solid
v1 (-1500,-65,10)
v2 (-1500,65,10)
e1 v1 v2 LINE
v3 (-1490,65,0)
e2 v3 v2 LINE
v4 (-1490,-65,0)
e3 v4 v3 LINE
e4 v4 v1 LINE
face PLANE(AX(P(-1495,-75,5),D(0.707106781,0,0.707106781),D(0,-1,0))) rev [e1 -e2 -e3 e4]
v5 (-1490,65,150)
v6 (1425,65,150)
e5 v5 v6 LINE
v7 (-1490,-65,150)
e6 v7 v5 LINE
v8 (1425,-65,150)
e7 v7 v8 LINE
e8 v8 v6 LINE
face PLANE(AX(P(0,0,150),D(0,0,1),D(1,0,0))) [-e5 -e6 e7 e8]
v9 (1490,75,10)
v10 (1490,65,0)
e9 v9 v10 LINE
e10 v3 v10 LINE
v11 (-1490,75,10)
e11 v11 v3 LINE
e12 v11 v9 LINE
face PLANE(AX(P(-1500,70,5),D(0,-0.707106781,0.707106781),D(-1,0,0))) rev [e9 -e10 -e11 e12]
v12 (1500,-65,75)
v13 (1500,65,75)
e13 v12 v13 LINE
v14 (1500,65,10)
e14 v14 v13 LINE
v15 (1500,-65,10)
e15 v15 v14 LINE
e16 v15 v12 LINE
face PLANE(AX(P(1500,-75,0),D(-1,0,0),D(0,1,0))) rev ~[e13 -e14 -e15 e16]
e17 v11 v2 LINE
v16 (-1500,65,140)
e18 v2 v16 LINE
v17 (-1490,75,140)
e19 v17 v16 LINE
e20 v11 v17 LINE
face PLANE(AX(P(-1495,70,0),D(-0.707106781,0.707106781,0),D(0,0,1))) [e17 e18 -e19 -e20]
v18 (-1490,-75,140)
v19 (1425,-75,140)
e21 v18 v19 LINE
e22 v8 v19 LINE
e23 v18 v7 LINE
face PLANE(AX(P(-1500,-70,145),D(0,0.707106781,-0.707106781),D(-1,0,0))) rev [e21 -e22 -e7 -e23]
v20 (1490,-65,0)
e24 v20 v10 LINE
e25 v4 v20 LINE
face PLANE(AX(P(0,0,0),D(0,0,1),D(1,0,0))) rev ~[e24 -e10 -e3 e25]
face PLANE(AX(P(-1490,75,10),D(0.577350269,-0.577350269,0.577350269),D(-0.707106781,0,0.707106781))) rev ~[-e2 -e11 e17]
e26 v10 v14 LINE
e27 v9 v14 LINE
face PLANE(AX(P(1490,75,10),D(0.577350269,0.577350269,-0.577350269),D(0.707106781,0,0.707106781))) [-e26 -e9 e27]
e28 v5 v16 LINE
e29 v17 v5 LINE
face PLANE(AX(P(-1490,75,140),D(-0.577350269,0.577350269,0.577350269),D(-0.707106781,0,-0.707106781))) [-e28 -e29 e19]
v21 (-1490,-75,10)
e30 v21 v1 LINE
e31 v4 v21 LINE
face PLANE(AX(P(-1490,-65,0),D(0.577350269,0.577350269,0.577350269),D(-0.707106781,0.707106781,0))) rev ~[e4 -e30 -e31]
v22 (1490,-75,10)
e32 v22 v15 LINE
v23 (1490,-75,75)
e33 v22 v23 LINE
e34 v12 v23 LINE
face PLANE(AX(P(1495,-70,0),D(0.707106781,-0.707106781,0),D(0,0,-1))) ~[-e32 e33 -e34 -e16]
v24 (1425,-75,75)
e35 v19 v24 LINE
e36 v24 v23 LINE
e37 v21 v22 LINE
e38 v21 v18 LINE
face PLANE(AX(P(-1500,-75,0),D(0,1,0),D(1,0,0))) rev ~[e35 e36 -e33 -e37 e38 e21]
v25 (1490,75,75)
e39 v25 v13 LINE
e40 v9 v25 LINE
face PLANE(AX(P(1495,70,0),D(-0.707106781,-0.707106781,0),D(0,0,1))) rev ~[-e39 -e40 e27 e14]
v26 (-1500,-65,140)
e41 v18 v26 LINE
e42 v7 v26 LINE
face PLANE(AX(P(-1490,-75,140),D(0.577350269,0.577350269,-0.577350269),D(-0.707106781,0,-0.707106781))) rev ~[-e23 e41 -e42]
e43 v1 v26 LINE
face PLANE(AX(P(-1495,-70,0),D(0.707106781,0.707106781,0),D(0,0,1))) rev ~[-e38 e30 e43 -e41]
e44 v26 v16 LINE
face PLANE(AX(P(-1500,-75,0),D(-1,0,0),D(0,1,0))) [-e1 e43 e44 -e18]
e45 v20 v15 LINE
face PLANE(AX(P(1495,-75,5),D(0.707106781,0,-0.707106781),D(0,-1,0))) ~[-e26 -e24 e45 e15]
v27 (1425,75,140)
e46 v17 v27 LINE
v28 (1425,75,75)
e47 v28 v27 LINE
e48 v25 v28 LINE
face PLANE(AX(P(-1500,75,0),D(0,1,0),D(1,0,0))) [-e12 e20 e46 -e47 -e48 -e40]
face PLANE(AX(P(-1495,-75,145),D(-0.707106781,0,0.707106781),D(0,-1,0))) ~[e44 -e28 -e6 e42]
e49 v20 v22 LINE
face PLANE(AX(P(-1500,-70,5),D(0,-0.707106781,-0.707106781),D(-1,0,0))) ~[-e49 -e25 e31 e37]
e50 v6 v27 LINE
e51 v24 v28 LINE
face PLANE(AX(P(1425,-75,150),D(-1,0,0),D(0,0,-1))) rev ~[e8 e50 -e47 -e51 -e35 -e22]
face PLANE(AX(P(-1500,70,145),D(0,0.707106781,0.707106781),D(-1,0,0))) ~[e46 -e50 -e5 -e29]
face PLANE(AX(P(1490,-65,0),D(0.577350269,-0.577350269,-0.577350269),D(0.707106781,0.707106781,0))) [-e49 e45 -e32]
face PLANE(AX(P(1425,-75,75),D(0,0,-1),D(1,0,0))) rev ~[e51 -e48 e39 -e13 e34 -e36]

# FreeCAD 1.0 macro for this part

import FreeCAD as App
import Part
import Sketcher
from FreeCAD import Vector


def add_polygon(sketch, points):
    """Adds a closed chain of lines whose ends are joined by coincident constraints."""
    first, n = sketch.GeometryCount, len(points)
    for a, b in zip(points, points[1:] + points[:1]):
        sketch.addGeometry(Part.LineSegment(App.Vector(*a, 0), App.Vector(*b, 0)), False)
    for i in range(n):
        sketch.addConstraint(Sketcher.Constraint("Coincident", first + i, 2, first + (i + 1) % n, 1))

doc = App.newDocument("Part")
body = doc.addObject("PartDesign::Body", "Body")

# Sketch on XY plane
sketch1 = body.newObject("Sketcher::SketchObject", "Sketch")
sketch1.AttachmentSupport = (doc.getObject("XY_Plane"), [""])
sketch1.MapMode = "FlatFace"
add_polygon(sketch1, [(-1500, 75), (-1500, -75), (1500, -75), (1500, 75)])  # lines 0-3
sketch1.addConstraint(Sketcher.Constraint("Vertical", 0))
sketch1.addConstraint(Sketcher.Constraint("Horizontal", 1))
sketch1.addConstraint(Sketcher.Constraint("Vertical", 2))
sketch1.addConstraint(Sketcher.Constraint("Horizontal", 3))
sketch1.addConstraint(Sketcher.Constraint("Symmetric", 0, 2, 2, 2, -1, 1))
sketch1.addConstraint(Sketcher.Constraint("DistanceX", 1, 1, 1, 2, 3000.0))
sketch1.addConstraint(Sketcher.Constraint("DistanceY", 0, 2, 0, 1, 150.0))
pad1 = body.newObject("PartDesign::Pad", "Pad")
pad1.Profile = sketch1
pad1.Length = 150
doc.recompute()

chamfer = body.newObject("PartDesign::Chamfer", "Chamfer")
chamfer.Base = (pad1, ["Edge1"])
chamfer.UseAllEdges = True
chamfer.Size = 10

# Sketch on XZ plane
sketch2 = body.newObject("Sketcher::SketchObject", "Sketch001")
sketch2.AttachmentSupport = (doc.getObject("XZ_Plane"), [""])
sketch2.MapMode = "FlatFace"
sketch2.AttachmentOffset = App.Placement(Vector(0, 0, 75), App.Rotation())
add_polygon(sketch2, [(1425, 75), (1500, 75), (1500, 150), (1425, 150)])  # lines 0-3
sketch2.addConstraint(Sketcher.Constraint("Horizontal", 0))
sketch2.addConstraint(Sketcher.Constraint("Vertical", 1))
sketch2.addConstraint(Sketcher.Constraint("Horizontal", 2))
sketch2.addConstraint(Sketcher.Constraint("Vertical", 3))
sketch2.addConstraint(Sketcher.Constraint("Equal", 2, 1))
sketch2.addConstraint(Sketcher.Constraint("DistanceX", 0, 1, 0, 2, 75.0))
sketch2.addConstraint(Sketcher.Constraint("DistanceX", -1, 1, 0, 2, 1500.0))
sketch2.addConstraint(Sketcher.Constraint("DistanceY", -1, 1, 0, 2, 75.0))
pocket1 = body.newObject("PartDesign::Pocket", "Pocket")
pocket1.Profile = sketch2
pocket1.Type = "ThroughAll"

doc.recompute()
